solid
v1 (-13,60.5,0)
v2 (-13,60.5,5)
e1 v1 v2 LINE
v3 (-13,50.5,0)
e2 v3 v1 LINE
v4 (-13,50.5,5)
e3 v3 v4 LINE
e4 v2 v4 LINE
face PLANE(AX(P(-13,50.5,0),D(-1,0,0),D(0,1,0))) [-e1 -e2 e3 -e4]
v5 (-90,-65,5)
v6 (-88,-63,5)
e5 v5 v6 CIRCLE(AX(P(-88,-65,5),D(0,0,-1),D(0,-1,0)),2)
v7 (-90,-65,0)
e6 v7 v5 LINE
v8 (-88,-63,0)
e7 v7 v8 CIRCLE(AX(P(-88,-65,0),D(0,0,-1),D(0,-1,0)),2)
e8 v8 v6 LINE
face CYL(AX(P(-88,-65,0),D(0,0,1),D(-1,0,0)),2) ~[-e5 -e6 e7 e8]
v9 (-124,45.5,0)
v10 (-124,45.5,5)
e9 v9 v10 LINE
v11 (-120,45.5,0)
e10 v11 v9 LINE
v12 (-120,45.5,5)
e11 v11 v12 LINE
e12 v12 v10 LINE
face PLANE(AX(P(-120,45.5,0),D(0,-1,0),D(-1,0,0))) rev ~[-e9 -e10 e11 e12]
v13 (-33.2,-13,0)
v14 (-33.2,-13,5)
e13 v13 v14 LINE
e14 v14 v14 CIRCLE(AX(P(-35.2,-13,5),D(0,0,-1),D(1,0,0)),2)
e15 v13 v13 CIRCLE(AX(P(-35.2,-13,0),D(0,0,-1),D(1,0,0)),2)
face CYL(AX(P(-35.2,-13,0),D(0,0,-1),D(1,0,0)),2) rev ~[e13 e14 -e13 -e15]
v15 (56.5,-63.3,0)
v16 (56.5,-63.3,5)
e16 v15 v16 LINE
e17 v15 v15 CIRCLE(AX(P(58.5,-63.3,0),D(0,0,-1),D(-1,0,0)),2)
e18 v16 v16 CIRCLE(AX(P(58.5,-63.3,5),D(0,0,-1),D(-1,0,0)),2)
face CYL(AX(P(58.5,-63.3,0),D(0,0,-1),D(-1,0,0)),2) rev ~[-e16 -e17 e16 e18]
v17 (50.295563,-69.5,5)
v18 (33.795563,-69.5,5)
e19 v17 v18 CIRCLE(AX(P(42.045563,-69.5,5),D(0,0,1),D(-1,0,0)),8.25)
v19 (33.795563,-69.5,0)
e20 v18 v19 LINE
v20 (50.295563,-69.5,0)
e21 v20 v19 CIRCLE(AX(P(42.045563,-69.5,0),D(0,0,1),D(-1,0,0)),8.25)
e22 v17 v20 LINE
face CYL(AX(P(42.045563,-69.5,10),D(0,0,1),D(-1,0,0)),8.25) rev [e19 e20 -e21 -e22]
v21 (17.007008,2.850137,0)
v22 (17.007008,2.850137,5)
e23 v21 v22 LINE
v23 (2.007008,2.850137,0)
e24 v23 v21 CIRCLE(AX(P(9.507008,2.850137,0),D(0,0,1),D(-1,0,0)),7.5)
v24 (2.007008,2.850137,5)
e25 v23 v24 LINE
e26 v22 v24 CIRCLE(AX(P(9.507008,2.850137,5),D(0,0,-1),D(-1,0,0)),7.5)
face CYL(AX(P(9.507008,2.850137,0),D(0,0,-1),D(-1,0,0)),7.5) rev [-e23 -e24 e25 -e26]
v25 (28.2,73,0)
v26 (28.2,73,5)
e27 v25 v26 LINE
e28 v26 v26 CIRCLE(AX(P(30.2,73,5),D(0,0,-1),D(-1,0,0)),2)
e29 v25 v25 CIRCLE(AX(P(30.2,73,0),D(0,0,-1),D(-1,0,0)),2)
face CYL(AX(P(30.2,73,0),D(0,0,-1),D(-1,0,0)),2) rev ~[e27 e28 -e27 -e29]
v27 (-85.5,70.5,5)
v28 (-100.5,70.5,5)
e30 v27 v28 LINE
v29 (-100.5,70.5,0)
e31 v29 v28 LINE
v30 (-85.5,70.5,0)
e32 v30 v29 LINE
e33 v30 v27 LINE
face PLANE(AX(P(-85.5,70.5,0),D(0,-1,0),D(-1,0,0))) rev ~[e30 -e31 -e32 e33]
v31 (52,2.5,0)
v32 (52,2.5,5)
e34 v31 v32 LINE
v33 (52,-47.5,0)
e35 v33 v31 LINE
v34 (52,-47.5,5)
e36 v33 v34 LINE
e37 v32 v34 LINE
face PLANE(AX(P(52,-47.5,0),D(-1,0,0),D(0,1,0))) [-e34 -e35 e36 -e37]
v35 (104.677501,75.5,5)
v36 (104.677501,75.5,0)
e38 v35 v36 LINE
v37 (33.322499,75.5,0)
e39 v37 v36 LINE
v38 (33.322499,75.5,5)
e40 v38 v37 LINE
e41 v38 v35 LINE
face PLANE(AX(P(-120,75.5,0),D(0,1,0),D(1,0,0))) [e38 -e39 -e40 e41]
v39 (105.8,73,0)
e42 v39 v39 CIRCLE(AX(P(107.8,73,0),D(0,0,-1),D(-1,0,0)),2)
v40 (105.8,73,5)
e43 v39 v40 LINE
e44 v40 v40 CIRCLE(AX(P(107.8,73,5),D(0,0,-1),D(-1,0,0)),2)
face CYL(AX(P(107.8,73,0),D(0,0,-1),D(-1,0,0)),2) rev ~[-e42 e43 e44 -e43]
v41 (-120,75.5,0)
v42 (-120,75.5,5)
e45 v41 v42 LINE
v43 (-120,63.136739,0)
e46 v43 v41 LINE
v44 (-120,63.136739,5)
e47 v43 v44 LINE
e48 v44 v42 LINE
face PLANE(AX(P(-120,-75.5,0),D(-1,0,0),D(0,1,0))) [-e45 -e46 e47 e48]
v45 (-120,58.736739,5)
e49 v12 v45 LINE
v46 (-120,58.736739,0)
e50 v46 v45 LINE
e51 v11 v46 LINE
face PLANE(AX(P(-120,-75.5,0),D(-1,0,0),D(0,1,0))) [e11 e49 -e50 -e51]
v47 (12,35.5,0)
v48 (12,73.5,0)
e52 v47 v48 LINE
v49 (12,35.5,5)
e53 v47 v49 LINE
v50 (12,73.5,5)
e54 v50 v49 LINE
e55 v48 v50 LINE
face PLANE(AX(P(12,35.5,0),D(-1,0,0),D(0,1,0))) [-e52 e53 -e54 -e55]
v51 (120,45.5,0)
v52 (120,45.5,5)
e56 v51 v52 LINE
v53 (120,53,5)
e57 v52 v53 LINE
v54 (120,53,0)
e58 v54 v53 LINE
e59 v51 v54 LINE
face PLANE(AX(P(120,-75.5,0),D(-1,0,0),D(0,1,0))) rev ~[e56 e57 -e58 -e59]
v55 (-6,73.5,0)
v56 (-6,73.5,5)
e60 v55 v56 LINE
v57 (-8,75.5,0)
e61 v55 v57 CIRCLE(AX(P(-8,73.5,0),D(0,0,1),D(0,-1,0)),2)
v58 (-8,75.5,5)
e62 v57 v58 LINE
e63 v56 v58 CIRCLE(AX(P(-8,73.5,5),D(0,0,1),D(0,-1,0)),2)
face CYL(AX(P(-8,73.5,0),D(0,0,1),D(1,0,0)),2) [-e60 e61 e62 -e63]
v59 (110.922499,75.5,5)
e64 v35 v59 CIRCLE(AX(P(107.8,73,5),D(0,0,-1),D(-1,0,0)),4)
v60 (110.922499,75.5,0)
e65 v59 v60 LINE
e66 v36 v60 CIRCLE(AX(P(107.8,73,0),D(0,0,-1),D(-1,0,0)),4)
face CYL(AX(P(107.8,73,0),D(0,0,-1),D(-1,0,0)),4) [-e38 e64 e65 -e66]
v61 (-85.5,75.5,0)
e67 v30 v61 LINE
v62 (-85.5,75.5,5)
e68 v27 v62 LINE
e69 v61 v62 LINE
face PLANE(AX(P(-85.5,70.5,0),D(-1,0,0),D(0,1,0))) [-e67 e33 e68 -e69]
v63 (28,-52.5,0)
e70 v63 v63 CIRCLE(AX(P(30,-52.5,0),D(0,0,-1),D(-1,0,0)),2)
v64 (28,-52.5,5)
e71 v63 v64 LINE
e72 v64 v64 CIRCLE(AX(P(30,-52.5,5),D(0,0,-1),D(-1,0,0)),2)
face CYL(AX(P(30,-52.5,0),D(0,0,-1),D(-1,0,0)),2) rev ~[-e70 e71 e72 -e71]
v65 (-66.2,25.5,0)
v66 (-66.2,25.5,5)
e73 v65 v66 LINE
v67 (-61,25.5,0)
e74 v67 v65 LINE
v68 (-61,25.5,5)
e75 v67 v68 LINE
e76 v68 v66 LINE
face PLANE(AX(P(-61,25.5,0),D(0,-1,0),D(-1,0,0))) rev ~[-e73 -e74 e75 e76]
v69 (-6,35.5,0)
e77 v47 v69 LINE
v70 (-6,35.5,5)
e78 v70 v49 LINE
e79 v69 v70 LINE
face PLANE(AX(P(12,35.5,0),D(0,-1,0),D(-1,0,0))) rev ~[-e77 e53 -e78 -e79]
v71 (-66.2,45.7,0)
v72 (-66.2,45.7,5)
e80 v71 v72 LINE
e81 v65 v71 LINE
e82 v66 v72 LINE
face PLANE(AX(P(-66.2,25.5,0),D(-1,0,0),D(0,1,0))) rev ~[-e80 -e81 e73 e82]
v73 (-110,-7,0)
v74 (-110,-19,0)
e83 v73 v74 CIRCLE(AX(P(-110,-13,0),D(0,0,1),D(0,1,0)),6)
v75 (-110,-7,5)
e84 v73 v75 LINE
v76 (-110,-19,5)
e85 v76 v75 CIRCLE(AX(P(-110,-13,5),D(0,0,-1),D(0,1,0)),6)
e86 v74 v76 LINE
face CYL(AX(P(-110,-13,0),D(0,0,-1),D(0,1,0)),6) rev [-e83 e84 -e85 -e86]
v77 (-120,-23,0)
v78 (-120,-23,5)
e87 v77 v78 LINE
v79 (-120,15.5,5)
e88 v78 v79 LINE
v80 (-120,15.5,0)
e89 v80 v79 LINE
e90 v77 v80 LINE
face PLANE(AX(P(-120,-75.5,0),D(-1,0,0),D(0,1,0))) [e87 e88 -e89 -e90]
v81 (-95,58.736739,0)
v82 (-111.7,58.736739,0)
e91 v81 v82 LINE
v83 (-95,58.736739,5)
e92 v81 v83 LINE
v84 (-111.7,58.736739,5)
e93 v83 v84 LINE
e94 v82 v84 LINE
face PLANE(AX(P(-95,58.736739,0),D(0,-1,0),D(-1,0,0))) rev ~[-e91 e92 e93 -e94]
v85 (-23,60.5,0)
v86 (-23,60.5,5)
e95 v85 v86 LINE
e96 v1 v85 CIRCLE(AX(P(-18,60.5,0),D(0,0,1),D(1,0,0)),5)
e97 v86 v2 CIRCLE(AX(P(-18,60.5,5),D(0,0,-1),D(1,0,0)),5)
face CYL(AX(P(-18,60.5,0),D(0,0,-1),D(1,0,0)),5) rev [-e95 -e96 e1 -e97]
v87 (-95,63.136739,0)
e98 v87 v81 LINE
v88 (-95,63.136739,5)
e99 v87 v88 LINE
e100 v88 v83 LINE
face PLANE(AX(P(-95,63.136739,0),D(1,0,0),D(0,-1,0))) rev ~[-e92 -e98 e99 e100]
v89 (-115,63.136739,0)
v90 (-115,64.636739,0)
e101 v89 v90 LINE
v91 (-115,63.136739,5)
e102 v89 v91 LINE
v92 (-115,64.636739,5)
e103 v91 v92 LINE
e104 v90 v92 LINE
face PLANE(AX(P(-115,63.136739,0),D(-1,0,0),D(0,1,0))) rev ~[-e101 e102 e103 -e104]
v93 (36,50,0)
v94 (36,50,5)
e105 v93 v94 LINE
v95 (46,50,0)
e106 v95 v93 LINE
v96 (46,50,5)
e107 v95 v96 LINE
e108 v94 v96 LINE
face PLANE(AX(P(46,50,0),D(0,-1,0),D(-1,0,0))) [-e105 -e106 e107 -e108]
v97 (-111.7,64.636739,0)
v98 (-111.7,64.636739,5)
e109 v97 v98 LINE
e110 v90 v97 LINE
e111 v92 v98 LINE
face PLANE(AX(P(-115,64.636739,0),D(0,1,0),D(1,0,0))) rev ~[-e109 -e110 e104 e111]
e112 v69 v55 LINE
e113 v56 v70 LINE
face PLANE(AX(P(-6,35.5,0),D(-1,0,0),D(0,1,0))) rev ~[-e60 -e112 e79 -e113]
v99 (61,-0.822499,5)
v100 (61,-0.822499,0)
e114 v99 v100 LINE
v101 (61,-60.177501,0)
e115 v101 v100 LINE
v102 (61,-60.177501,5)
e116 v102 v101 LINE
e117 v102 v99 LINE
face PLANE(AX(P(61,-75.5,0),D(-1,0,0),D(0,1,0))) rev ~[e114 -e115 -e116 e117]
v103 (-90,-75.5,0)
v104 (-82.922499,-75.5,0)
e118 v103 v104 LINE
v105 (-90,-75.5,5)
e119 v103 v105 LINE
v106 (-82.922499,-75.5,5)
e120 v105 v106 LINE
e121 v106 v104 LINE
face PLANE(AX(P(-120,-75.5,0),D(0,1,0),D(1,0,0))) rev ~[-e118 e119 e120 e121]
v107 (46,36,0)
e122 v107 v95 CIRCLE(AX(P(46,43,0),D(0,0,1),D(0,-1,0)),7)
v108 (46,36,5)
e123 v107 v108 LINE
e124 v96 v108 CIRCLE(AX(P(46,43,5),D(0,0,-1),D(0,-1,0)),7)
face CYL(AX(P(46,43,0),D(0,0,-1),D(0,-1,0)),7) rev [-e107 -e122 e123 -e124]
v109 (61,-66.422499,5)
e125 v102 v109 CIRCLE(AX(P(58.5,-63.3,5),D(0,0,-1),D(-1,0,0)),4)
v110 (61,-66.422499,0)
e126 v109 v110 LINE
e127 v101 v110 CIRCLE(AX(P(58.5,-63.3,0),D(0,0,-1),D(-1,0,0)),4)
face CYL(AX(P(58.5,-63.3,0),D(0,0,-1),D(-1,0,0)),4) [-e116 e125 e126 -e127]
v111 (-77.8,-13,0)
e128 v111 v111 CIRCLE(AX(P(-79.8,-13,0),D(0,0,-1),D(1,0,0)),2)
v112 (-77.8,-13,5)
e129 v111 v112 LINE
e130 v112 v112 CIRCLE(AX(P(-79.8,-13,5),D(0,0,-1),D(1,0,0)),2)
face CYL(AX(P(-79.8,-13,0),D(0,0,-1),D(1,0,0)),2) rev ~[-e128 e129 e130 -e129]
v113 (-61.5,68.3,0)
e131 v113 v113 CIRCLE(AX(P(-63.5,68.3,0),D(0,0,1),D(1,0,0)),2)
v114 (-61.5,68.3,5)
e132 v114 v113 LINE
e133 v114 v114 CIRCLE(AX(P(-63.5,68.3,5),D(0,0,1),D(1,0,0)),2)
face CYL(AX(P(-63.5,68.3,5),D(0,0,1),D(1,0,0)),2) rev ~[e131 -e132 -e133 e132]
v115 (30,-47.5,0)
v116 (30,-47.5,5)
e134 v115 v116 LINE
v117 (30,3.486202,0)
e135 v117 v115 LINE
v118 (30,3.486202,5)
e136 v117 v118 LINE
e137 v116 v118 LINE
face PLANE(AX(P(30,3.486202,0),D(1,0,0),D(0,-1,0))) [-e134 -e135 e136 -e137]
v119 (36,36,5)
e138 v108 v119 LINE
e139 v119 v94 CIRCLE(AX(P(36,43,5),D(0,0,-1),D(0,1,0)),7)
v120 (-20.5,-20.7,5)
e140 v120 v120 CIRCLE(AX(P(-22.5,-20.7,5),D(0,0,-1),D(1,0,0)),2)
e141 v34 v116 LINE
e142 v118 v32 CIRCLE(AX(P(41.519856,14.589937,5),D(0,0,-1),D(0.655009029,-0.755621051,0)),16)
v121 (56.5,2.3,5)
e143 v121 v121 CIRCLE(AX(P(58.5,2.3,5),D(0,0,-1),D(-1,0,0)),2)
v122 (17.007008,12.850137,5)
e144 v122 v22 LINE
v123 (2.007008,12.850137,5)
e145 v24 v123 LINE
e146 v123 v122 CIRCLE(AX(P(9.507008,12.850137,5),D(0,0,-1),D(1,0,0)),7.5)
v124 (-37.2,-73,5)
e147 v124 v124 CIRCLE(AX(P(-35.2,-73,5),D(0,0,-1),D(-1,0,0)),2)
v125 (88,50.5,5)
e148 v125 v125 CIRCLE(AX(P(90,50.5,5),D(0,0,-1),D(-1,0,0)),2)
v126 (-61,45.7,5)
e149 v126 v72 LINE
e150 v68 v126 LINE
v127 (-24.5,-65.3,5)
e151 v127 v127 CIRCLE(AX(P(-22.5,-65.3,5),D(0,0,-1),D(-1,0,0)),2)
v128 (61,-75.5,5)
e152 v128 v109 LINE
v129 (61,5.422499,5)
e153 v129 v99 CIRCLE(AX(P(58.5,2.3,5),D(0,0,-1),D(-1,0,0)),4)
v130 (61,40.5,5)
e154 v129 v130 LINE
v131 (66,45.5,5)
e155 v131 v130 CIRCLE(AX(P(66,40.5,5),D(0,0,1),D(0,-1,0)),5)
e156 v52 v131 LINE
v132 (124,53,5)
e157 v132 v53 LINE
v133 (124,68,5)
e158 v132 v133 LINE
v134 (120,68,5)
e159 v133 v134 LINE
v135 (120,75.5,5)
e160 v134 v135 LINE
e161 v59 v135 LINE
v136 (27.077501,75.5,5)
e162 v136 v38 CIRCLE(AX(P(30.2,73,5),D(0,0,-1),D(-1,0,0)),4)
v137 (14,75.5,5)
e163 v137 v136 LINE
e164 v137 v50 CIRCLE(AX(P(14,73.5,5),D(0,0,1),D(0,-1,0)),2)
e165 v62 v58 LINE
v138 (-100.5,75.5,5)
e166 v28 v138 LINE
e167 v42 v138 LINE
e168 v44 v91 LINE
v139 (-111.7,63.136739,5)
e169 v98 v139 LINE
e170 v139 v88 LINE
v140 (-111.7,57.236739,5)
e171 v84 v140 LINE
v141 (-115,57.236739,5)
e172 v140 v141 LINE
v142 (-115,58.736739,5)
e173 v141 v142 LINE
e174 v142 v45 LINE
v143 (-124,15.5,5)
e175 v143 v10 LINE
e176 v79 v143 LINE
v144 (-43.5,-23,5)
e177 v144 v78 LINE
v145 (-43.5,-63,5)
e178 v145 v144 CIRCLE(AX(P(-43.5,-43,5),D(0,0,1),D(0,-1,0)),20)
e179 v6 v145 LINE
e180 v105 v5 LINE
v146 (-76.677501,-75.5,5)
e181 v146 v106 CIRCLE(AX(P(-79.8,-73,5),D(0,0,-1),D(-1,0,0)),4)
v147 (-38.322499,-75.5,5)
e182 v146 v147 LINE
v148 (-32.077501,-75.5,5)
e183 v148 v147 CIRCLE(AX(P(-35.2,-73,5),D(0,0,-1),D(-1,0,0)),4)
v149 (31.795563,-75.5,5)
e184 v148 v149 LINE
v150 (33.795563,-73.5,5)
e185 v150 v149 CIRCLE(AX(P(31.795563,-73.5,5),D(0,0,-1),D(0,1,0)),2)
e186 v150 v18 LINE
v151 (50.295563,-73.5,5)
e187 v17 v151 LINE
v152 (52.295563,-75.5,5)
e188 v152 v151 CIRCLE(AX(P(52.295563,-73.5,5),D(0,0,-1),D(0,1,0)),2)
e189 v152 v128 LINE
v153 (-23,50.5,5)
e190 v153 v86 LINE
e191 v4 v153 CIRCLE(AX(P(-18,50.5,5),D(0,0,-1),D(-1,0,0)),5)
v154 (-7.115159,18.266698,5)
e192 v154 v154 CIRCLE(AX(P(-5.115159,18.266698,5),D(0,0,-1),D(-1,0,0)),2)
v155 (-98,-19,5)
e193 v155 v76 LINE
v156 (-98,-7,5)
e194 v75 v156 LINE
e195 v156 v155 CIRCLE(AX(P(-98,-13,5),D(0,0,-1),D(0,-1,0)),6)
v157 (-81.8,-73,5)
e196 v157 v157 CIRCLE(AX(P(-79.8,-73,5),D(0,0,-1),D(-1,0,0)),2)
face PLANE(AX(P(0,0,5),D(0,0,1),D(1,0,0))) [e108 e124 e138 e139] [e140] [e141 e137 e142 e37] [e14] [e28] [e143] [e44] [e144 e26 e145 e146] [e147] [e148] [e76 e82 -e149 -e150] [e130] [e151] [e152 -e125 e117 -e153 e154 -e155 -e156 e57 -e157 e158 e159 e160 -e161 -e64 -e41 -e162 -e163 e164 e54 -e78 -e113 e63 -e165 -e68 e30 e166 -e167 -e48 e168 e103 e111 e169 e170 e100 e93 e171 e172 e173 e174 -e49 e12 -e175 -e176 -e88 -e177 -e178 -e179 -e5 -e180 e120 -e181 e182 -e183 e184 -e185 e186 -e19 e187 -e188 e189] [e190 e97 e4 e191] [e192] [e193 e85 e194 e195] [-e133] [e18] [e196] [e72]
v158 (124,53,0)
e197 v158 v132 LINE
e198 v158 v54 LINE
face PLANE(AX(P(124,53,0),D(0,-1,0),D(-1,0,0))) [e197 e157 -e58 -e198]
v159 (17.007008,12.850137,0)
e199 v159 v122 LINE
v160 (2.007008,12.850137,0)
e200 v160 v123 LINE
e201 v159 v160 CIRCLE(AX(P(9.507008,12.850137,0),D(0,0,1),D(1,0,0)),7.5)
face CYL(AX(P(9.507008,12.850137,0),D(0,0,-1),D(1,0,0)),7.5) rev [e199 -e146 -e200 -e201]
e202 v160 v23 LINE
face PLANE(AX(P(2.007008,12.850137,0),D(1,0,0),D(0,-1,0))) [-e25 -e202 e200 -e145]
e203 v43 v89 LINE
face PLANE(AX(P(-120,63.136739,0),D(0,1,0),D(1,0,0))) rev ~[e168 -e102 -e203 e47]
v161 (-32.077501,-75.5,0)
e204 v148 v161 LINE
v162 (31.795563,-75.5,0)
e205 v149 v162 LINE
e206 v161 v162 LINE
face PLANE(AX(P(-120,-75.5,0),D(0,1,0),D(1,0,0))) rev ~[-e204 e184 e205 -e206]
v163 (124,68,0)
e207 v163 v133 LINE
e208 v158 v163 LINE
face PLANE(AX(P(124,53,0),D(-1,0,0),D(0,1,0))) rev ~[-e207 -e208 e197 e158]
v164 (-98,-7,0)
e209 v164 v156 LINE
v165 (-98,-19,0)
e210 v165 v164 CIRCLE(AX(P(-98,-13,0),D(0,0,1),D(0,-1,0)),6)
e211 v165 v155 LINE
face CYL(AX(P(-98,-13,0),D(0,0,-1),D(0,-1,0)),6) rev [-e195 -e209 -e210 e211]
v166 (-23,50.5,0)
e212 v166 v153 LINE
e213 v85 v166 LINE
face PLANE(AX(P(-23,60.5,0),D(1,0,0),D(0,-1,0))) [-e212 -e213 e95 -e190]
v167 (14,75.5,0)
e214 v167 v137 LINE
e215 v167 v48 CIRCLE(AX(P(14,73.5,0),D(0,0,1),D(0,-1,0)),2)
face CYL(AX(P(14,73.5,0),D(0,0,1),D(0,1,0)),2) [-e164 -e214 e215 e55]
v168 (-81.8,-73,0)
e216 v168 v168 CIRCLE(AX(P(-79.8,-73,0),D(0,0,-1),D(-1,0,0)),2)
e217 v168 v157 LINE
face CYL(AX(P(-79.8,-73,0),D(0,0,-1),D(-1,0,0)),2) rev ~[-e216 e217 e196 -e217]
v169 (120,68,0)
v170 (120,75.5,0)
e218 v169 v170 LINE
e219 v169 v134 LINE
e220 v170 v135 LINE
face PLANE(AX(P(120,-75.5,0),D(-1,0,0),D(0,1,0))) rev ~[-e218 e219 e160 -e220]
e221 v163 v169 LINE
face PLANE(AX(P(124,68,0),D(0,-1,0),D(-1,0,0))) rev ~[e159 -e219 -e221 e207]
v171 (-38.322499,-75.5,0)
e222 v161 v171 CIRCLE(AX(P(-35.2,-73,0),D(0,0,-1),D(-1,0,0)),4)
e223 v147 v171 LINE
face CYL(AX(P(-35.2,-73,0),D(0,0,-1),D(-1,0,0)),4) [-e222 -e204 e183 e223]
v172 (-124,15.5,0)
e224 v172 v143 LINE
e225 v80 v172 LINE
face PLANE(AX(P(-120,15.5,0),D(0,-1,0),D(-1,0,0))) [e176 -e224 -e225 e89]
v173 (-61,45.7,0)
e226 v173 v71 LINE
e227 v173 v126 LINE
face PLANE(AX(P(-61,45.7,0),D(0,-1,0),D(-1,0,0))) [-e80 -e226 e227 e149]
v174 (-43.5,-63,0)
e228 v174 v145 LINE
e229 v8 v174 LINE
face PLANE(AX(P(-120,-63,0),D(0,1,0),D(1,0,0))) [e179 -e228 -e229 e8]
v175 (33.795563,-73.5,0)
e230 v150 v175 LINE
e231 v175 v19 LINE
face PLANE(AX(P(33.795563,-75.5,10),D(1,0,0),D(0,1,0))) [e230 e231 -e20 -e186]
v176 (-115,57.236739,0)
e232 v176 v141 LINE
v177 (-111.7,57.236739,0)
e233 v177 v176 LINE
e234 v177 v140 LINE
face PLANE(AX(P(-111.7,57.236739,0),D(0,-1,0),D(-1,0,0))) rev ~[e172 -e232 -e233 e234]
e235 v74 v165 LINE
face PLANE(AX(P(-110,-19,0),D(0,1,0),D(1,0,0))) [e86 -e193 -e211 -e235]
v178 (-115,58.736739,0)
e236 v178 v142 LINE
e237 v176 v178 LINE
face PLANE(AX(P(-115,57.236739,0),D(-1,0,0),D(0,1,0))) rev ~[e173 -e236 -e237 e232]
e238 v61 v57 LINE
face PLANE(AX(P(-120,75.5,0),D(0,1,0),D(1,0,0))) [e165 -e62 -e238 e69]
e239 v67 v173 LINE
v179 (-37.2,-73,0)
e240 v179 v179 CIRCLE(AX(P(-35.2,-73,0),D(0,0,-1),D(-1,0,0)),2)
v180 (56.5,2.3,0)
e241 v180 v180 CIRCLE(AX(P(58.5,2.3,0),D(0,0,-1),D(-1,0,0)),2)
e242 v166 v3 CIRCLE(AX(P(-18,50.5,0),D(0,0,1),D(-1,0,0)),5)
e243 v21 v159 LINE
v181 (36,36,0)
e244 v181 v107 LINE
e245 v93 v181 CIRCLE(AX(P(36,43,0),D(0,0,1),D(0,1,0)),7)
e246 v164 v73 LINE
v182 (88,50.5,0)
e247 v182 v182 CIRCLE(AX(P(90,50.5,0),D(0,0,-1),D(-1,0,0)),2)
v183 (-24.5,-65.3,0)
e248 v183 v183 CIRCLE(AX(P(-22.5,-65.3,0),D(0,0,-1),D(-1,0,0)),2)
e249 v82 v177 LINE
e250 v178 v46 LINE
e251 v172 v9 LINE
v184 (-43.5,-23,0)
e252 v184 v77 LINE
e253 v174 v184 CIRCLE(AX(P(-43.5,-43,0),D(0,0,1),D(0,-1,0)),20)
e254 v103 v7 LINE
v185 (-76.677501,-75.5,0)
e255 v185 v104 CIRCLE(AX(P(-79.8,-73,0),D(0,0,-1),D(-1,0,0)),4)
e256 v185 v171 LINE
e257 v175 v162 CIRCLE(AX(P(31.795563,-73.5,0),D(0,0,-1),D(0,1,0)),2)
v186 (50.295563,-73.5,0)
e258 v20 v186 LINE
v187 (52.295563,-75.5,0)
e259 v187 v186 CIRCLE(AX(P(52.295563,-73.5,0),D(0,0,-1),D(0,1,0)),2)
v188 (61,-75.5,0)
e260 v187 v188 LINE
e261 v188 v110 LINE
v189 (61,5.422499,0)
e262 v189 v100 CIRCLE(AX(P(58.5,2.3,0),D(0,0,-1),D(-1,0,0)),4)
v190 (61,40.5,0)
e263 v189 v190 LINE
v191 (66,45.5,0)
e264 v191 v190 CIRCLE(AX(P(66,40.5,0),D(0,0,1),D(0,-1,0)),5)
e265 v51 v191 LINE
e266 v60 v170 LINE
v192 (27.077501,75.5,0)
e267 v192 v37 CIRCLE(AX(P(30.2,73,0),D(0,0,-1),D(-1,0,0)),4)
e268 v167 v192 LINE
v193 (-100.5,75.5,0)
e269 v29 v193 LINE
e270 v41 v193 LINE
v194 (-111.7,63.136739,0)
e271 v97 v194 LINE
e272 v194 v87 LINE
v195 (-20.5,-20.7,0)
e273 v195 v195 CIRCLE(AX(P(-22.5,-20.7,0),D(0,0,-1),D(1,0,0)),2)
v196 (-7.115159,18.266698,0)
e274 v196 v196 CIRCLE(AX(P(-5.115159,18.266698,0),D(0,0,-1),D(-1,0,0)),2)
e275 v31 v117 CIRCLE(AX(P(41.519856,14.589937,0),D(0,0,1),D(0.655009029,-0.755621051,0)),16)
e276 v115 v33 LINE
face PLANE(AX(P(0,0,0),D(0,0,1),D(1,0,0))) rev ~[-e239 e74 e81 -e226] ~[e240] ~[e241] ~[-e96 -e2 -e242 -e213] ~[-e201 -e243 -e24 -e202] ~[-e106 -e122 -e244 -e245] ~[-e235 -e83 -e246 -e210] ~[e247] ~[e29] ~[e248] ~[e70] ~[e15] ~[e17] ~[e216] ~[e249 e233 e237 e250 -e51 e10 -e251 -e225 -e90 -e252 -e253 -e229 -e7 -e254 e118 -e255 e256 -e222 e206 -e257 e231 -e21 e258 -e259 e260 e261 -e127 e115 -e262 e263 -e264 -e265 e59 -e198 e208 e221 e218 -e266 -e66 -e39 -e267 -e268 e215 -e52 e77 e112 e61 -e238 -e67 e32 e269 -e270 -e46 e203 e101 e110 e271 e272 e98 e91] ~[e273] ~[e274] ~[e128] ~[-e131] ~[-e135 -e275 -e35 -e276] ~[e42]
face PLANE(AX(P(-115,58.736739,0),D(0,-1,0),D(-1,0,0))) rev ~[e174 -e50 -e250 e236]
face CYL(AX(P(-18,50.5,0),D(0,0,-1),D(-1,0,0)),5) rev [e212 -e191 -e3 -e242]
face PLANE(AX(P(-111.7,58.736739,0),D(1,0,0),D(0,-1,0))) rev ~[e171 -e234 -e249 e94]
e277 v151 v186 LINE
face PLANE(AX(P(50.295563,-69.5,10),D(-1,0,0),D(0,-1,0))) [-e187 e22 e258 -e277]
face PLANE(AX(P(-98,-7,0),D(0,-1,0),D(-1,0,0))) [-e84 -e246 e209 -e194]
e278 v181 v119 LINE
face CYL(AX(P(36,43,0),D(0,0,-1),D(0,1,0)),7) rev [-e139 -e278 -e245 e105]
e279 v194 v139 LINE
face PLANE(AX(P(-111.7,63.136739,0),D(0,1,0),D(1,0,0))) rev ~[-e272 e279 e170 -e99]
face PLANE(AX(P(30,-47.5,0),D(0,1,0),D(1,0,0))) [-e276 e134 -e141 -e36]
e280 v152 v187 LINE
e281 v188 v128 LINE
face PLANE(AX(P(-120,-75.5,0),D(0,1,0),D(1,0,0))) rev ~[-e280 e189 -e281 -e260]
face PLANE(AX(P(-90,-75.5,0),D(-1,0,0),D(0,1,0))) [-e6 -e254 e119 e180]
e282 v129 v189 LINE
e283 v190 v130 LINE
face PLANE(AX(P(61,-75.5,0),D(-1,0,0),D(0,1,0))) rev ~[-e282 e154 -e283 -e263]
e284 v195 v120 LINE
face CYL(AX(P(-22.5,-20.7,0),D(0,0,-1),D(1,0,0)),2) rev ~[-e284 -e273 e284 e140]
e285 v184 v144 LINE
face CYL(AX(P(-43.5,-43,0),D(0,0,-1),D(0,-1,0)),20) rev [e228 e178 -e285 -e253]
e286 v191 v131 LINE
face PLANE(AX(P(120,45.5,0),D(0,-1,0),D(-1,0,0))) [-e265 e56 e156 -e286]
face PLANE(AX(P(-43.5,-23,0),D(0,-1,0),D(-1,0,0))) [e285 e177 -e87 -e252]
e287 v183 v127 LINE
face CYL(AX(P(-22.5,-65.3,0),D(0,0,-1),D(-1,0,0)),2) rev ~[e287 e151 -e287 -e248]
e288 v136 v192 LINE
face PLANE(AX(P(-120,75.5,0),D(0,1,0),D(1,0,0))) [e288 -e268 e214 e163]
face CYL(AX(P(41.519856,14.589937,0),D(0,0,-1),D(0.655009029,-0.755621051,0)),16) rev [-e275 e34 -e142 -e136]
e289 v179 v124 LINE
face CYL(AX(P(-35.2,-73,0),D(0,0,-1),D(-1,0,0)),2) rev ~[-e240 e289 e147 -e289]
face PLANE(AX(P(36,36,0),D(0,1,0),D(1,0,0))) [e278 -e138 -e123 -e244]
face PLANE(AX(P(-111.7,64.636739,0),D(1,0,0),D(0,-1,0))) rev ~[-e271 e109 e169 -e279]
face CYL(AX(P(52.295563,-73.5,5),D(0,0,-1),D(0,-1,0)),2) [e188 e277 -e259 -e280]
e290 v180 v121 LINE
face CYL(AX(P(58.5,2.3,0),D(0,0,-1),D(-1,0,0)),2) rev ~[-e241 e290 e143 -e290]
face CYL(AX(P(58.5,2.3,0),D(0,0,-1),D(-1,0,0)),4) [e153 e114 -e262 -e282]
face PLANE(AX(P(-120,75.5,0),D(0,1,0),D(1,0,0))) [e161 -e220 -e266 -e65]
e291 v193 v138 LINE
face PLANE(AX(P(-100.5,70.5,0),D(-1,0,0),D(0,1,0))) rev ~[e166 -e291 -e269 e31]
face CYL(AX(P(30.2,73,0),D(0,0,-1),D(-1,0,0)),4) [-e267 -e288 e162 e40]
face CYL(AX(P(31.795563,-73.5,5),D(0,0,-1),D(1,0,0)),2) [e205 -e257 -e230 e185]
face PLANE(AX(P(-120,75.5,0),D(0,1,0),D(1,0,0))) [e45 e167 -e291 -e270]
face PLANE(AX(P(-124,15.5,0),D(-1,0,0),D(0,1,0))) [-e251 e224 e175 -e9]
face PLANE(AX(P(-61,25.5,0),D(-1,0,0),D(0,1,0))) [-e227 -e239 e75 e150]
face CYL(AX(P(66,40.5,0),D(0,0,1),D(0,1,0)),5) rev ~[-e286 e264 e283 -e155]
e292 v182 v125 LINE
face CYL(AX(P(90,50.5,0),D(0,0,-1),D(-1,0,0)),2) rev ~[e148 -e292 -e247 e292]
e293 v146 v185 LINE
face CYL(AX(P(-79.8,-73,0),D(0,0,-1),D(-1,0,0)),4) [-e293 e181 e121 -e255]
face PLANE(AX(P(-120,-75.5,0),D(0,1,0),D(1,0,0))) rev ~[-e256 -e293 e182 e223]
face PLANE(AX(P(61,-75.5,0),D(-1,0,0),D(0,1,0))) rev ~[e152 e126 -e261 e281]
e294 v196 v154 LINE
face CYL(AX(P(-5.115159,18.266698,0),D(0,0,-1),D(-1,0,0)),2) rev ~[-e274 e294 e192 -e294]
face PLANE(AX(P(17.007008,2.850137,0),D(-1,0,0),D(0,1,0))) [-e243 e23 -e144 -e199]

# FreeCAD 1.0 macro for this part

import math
import FreeCAD as App
import Part
import Sketcher
from FreeCAD import Vector


def edges_at(feature, points):
    """Names of the edges that pass closest to the given points."""
    edges = feature.Shape.Edges
    near = lambda p: min(range(len(edges)), key=lambda i: edges[i].distToShape(Part.Vertex(*p))[0])
    return sorted({f"Edge{near(p) + 1}" for p in points})


def add_polygon(sketch, points):
    """Adds a closed chain of lines whose ends are joined by coincident constraints."""
    first, n = sketch.GeometryCount, len(points)
    for a, b in zip(points, points[1:] + points[:1]):
        sketch.addGeometry(Part.LineSegment(App.Vector(*a, 0), App.Vector(*b, 0)), False)
    for i in range(n):
        sketch.addConstraint(Sketcher.Constraint("Coincident", first + i, 2, first + (i + 1) % n, 1))

doc = App.newDocument("Part")
body = doc.addObject("PartDesign::Body", "Body")

# Sketch on XY plane
sketch1 = body.newObject("Sketcher::SketchObject", "Sketch")
sketch1.AttachmentSupport = (doc.getObject("XY_Plane"), [""])
sketch1.MapMode = "FlatFace"
add_polygon(sketch1, [(-120, 76), (-120, -76), (120, -76), (120, 76)])  # lines 0-3
sketch1.addConstraint([
    Sketcher.Constraint("Vertical", 0),
    Sketcher.Constraint("Horizontal", 1),
    Sketcher.Constraint("Vertical", 2),
    Sketcher.Constraint("Horizontal", 3),
    Sketcher.Constraint("Symmetric", 0, 2, 2, 2, -1, 1),
    Sketcher.Constraint("DistanceX", 1, 1, 1, 2, 240.0),
    Sketcher.Constraint("DistanceY", 0, 2, 0, 1, 151.0),
])
pad1 = body.newObject("PartDesign::Pad", "Pad")
pad1.Profile = sketch1
pad1.Length = 5

# Sketch on XY plane
sketch2 = body.newObject("Sketcher::SketchObject", "Sketch001")
sketch2.AttachmentSupport = (doc.getObject("XY_Plane"), [""])
sketch2.MapMode = "FlatFace"
sketch2.addGeometry([
    Part.Circle(Vector(-35.2, -73, 0), Vector(0, 0, 1), 2),  # 0
    Part.Circle(Vector(-79.8, -73, 0), Vector(0, 0, 1), 2),  # 1
    Part.Circle(Vector(-22.5, -65.3, 0), Vector(0, 0, 1), 2),  # 2
    Part.Circle(Vector(-22.5, -20.7, 0), Vector(0, 0, 1), 2),  # 3
    Part.Circle(Vector(-79.8, -13, 0), Vector(0, 0, 1), 2),  # 4
    Part.Circle(Vector(-35.2, -13, 0), Vector(0, 0, 1), 2),  # 5
], False)
sketch2.addConstraint([
    Sketcher.Constraint("Equal", 0, 1),
    Sketcher.Constraint("Equal", 1, 2),
    Sketcher.Constraint("Equal", 2, 3),
    Sketcher.Constraint("Equal", 3, 4),
    Sketcher.Constraint("Equal", 4, 5),
    Sketcher.Constraint("Horizontal", 0, 3, 1, 3),
    Sketcher.Constraint("Horizontal", 4, 3, 5, 3),
    Sketcher.Constraint("Vertical", 2, 3, 3, 3),
    Sketcher.Constraint("Vertical", 1, 3, 4, 3),
    Sketcher.Constraint("Vertical", 0, 3, 5, 3),
    Sketcher.Constraint("Diameter", 0, 4.0),
    Sketcher.Constraint("DistanceY", 0, 3, -1, 1, 73.0),
    Sketcher.Constraint("DistanceY", 4, 3, -1, 1, 13.0),
    Sketcher.Constraint("DistanceX", 0, 3, -1, 1, 35.2),
    Sketcher.Constraint("DistanceX", 1, 3, -1, 1, 79.8),
    Sketcher.Constraint("DistanceX", 2, 3, -1, 1, 22.5),
    Sketcher.Constraint("DistanceY", 2, 3, -1, 1, 65.3),
    Sketcher.Constraint("DistanceY", 3, 3, -1, 1, 20.7),
])
pocket1 = body.newObject("PartDesign::Pocket", "Pocket")
pocket1.Profile = sketch2
pocket1.Length = 5
pocket1.Reversed = True

# Sketch on XY plane
sketch3 = body.newObject("Sketcher::SketchObject", "Sketch002")
sketch3.AttachmentSupport = (doc.getObject("XY_Plane"), [""])
sketch3.MapMode = "FlatFace"
sketch3.addGeometry([
    Part.Circle(Vector(-35.2, -73, 0), Vector(0, 0, 1), 4),
    Part.Circle(Vector(-35.2, -73, 0), Vector(0, 0, 1), 2),
    Part.Circle(Vector(-79.8, -73, 0), Vector(0, 0, 1), 4),
    Part.Circle(Vector(-79.8, -73, 0), Vector(0, 0, 1), 2),
], False)
sketch3.addConstraint([
    Sketcher.Constraint("Coincident", 1, 3, 0, 3),
    Sketcher.Constraint("Coincident", 3, 3, 2, 3),
    Sketcher.Constraint("Equal", 0, 2),
    Sketcher.Constraint("Equal", 1, 3),
    Sketcher.Constraint("Horizontal", 1, 3, 2, 3),
    Sketcher.Constraint("Diameter", 0, 8.0),
    Sketcher.Constraint("Diameter", 1, 4.0),
    Sketcher.Constraint("DistanceY", 0, 3, -1, 1, 73.0),
    Sketcher.Constraint("DistanceX", 0, 3, -1, 1, 35.2),
    Sketcher.Constraint("DistanceX", 2, 3, -1, 1, 79.8),
])
pad2 = body.newObject("PartDesign::Pad", "Pad001")
pad2.Profile = sketch3
pad2.Length = 5

# Sketch on XY plane
sketch4 = body.newObject("Sketcher::SketchObject", "Sketch003")
sketch4.AttachmentSupport = (doc.getObject("XY_Plane"), [""])
sketch4.MapMode = "FlatFace"
sketch4.addGeometry([
    Part.LineSegment(Vector(-44, -63, 0), Vector(-120, -63, 0)),
    Part.LineSegment(Vector(-120, -63, 0), Vector(-120, -23, 0)),
    Part.LineSegment(Vector(-120, -23, 0), Vector(-44, -23, 0)),
    Part.ArcOfCircle(Part.Circle(Vector(-44, -43, 0), Vector(0, 0, 1), 20), math.radians(-90), math.radians(90)),
], False)
sketch4.addConstraint([
    Sketcher.Constraint("Coincident", 0, 2, 1, 1),
    Sketcher.Constraint("Coincident", 1, 2, 2, 1),
    Sketcher.Constraint("Tangent", 2, 2, 3, 2),
    Sketcher.Constraint("Tangent", 3, 1, 0, 1),
    Sketcher.Constraint("Horizontal", 0),
    Sketcher.Constraint("Vertical", 1),
    Sketcher.Constraint("Horizontal", 2),
    Sketcher.Constraint("Radius", 3, 20.0),
    Sketcher.Constraint("DistanceX", 0, 2, 0, 1, 76.5),
    Sketcher.Constraint("DistanceY", 3, 3, -1, 1, 43.0),
    Sketcher.Constraint("DistanceX", 0, 2, -1, 1, 120.0),
])
pocket2 = body.newObject("PartDesign::Pocket", "Pocket001")
pocket2.Profile = sketch4
pocket2.Length = 5
pocket2.Reversed = True

# Sketch on XY plane
sketch5 = body.newObject("Sketcher::SketchObject", "Sketch004")
sketch5.AttachmentSupport = (doc.getObject("XY_Plane"), [""])
sketch5.MapMode = "FlatFace"
add_polygon(sketch5, [(-90, -63), (-90, -76), (-120, -76), (-120, -63)])  # lines 0-3
sketch5.addConstraint([
    Sketcher.Constraint("Vertical", 0),
    Sketcher.Constraint("Horizontal", 1),
    Sketcher.Constraint("Vertical", 2),
    Sketcher.Constraint("Horizontal", 3),
    Sketcher.Constraint("DistanceX", 1, 2, 1, 1, 30.0),
    Sketcher.Constraint("DistanceY", 0, 2, 0, 1, 12.5),
    Sketcher.Constraint("DistanceX", 0, 2, -1, 1, 90.0),
    Sketcher.Constraint("DistanceY", 2, 2, -1, 1, 63.0),
])
pocket3 = body.newObject("PartDesign::Pocket", "Pocket002")
pocket3.Profile = sketch5
pocket3.Length = 5
pocket3.Reversed = True

# Sketch on XY plane
sketch6 = body.newObject("Sketcher::SketchObject", "Sketch005")
sketch6.AttachmentSupport = (doc.getObject("XY_Plane"), [""])
sketch6.MapMode = "FlatFace"
add_polygon(sketch6, [(120, 46), (120, -76), (61, -76), (61, 46)])  # lines 0-3
sketch6.addConstraint([
    Sketcher.Constraint("Vertical", 0),
    Sketcher.Constraint("Horizontal", 1),
    Sketcher.Constraint("Vertical", 2),
    Sketcher.Constraint("Horizontal", 3),
    Sketcher.Constraint("DistanceX", 1, 2, 1, 1, 59.0),
    Sketcher.Constraint("DistanceY", 0, 2, 0, 1, 121.0),
    Sketcher.Constraint("DistanceX", -1, 1, 0, 2, 120.0),
    Sketcher.Constraint("DistanceY", 0, 2, -1, 1, 75.5),
])
pocket4 = body.newObject("PartDesign::Pocket", "Pocket003")
pocket4.Profile = sketch6
pocket4.Length = 5
pocket4.Reversed = True

# Sketch on XY plane
sketch7 = body.newObject("Sketcher::SketchObject", "Sketch006")
sketch7.AttachmentSupport = (doc.getObject("XY_Plane"), [""])
sketch7.MapMode = "FlatFace"
add_polygon(sketch7, [(12, 76), (12, 36), (-6, 36), (-6, 76)])  # lines 0-3
sketch7.addConstraint([
    Sketcher.Constraint("Vertical", 0),
    Sketcher.Constraint("Horizontal", 1),
    Sketcher.Constraint("Vertical", 2),
    Sketcher.Constraint("Horizontal", 3),
    Sketcher.Constraint("DistanceX", 1, 2, 1, 1, 18.0),
    Sketcher.Constraint("DistanceY", 0, 2, 0, 1, 40.0),
    Sketcher.Constraint("DistanceX", -1, 1, 0, 2, 12.0),
    Sketcher.Constraint("DistanceY", -1, 1, 0, 2, 35.5),
])
pocket5 = body.newObject("PartDesign::Pocket", "Pocket004")
pocket5.Profile = sketch7
pocket5.Length = 10
pocket5.Reversed = True

# Sketch on XY plane
sketch8 = body.newObject("Sketcher::SketchObject", "Sketch007")
sketch8.AttachmentSupport = (doc.getObject("XY_Plane"), [""])
sketch8.MapMode = "FlatFace"
sketch8.AttachmentOffset = App.Placement(Vector(0, 0, 5), App.Rotation())
sketch8.addGeometry(Part.Circle(Vector(-63.5, 68.3, 0), Vector(0, 0, 1), 2), False)
sketch8.addConstraint([
    Sketcher.Constraint("Diameter", 0, 4.0),
    Sketcher.Constraint("DistanceX", 0, 3, -1, 1, 63.5),
    Sketcher.Constraint("DistanceY", -1, 1, 0, 3, 68.3),
])
pocket6 = body.newObject("PartDesign::Pocket", "Pocket005")
pocket6.Profile = sketch8
pocket6.Length = 5

# Sketch on XY plane
sketch9 = body.newObject("Sketcher::SketchObject", "Sketch008")
sketch9.AttachmentSupport = (doc.getObject("XY_Plane"), [""])
sketch9.MapMode = "FlatFace"
add_polygon(sketch9, [(-61, 46), (-61, 26), (-66, 26), (-66, 46)])  # lines 0-3
sketch9.addConstraint([
    Sketcher.Constraint("Vertical", 0),
    Sketcher.Constraint("Horizontal", 1),
    Sketcher.Constraint("Vertical", 2),
    Sketcher.Constraint("Horizontal", 3),
    Sketcher.Constraint("DistanceX", 1, 2, 1, 1, 5.2),
    Sketcher.Constraint("DistanceY", 0, 2, 0, 1, 20.2),
    Sketcher.Constraint("DistanceX", 0, 2, -1, 1, 61.0),
    Sketcher.Constraint("DistanceY", -1, 1, 0, 2, 25.5),
])
pocket7 = body.newObject("PartDesign::Pocket", "Pocket006")
pocket7.Profile = sketch9
pocket7.Length = 5
pocket7.Reversed = True

# Sketch on XY plane
sketch10 = body.newObject("Sketcher::SketchObject", "Sketch009")
sketch10.AttachmentSupport = (doc.getObject("XY_Plane"), [""])
sketch10.MapMode = "FlatFace"
sketch10.addGeometry([
    Part.LineSegment(Vector(2, 3, 0), Vector(2, 13, 0)),
    Part.ArcOfCircle(Part.Circle(Vector(10, 13, 0), Vector(0, 0, 1), 8), math.radians(0), math.radians(180)),
    Part.LineSegment(Vector(17, 13, 0), Vector(17, 3, 0)),
    Part.ArcOfCircle(Part.Circle(Vector(10, 3, 0), Vector(0, 0, 1), 8), math.radians(180), math.radians(360)),
], False)
sketch10.addConstraint([
    Sketcher.Constraint("Tangent", 0, 2, 1, 2),
    Sketcher.Constraint("Tangent", 1, 1, 2, 1),
    Sketcher.Constraint("Tangent", 2, 2, 3, 2),
    Sketcher.Constraint("Tangent", 3, 1, 0, 1),
    Sketcher.Constraint("Vertical", 0),
    Sketcher.Constraint("Vertical", 2),
    Sketcher.Constraint("Radius", 1, 7.5),
    Sketcher.Constraint("DistanceY", 0, 1, 0, 2, 10.0),
    Sketcher.Constraint("DistanceX", -1, 1, 1, 3, 9.507008),
    Sketcher.Constraint("DistanceY", -1, 1, 1, 3, 12.850137),
])
pocket8 = body.newObject("PartDesign::Pocket", "Pocket007")
pocket8.Profile = sketch10
pocket8.Length = 10
pocket8.Reversed = True

# Sketch on XY plane
sketch11 = body.newObject("Sketcher::SketchObject", "Sketch010")
sketch11.AttachmentSupport = (doc.getObject("XY_Plane"), [""])
sketch11.MapMode = "FlatFace"
sketch11.addGeometry([
    Part.ArcOfCircle(Part.Circle(Vector(42, -70, 0), Vector(0, 0, 1), 8), math.radians(0), math.radians(180)),
    Part.LineSegment(Vector(50, -70, 0), Vector(50, -76, 0)),
    Part.LineSegment(Vector(50, -76, 0), Vector(34, -76, 0)),
    Part.LineSegment(Vector(34, -76, 0), Vector(34, -70, 0)),
], False)
sketch11.addConstraint([
    Sketcher.Constraint("Tangent", 0, 1, 1, 1),
    Sketcher.Constraint("Coincident", 1, 2, 2, 1),
    Sketcher.Constraint("Coincident", 2, 2, 3, 1),
    Sketcher.Constraint("Tangent", 3, 2, 0, 2),
    Sketcher.Constraint("Vertical", 1),
    Sketcher.Constraint("Horizontal", 2),
    Sketcher.Constraint("Vertical", 3),
    Sketcher.Constraint("DistanceY", 1, 2, 1, 1, 6.0),
    Sketcher.Constraint("Radius", 0, 8.25),
    Sketcher.Constraint("DistanceY", 0, 3, -1, 1, 69.5),
    Sketcher.Constraint("DistanceX", -1, 1, 0, 3, 42.045563),
])
pocket9 = body.newObject("PartDesign::Pocket", "Pocket008")
pocket9.Profile = sketch11
pocket9.Type = "ThroughAll"
pocket9.Midplane = True

# Sketch on XY plane
sketch12 = body.newObject("Sketcher::SketchObject", "Sketch011")
sketch12.AttachmentSupport = (doc.getObject("XY_Plane"), [""])
sketch12.MapMode = "FlatFace"
sketch12.addGeometry([
    Part.Circle(Vector(107.8, 73, 0), Vector(0, 0, 1), 2),
    Part.Circle(Vector(30.2, 73, 0), Vector(0, 0, 1), 2),
], False)
sketch12.addConstraint([
    Sketcher.Constraint("Equal", 0, 1),
    Sketcher.Constraint("Horizontal", 0, 3, 1, 3),
    Sketcher.Constraint("Diameter", 0, 4.0),
    Sketcher.Constraint("DistanceY", -1, 1, 0, 3, 73.0),
    Sketcher.Constraint("DistanceX", -1, 1, 0, 3, 107.8),
    Sketcher.Constraint("DistanceX", -1, 1, 1, 3, 30.2),
])
pocket10 = body.newObject("PartDesign::Pocket", "Pocket009")
pocket10.Profile = sketch12
pocket10.Length = 5
pocket10.Reversed = True

# Sketch on XY plane
sketch13 = body.newObject("Sketcher::SketchObject", "Sketch012")
sketch13.AttachmentSupport = (doc.getObject("XY_Plane"), [""])
sketch13.MapMode = "FlatFace"
sketch13.addGeometry([
    Part.Circle(Vector(107.8, 73, 0), Vector(0, 0, 1), 4),
    Part.Circle(Vector(107.8, 73, 0), Vector(0, 0, 1), 2),
    Part.Circle(Vector(30.2, 73, 0), Vector(0, 0, 1), 4),
    Part.Circle(Vector(30.2, 73, 0), Vector(0, 0, 1), 2),
], False)
sketch13.addConstraint([
    Sketcher.Constraint("Coincident", 1, 3, 0, 3),
    Sketcher.Constraint("Coincident", 3, 3, 2, 3),
    Sketcher.Constraint("Equal", 0, 2),
    Sketcher.Constraint("Equal", 1, 3),
    Sketcher.Constraint("Horizontal", 1, 3, 2, 3),
    Sketcher.Constraint("Diameter", 0, 8.0),
    Sketcher.Constraint("Diameter", 1, 4.0),
    Sketcher.Constraint("DistanceY", -1, 1, 0, 3, 73.0),
    Sketcher.Constraint("DistanceX", -1, 1, 0, 3, 107.8),
    Sketcher.Constraint("DistanceX", -1, 1, 2, 3, 30.2),
])
pad3 = body.newObject("PartDesign::Pad", "Pad002")
pad3.Profile = sketch13
pad3.Length = 5

# Sketch on XY plane
sketch14 = body.newObject("Sketcher::SketchObject", "Sketch013")
sketch14.AttachmentSupport = (doc.getObject("XY_Plane"), [""])
sketch14.MapMode = "FlatFace"
sketch14.addGeometry([
    Part.LineSegment(Vector(-98, -19, 0), Vector(-110, -19, 0)),
    Part.ArcOfCircle(Part.Circle(Vector(-110, -13, 0), Vector(0, 0, 1), 6), math.radians(90), math.radians(270)),
    Part.LineSegment(Vector(-110, -7, 0), Vector(-98, -7, 0)),
    Part.ArcOfCircle(Part.Circle(Vector(-98, -13, 0), Vector(0, 0, 1), 6), math.radians(-90), math.radians(90)),
], False)
sketch14.addConstraint([
    Sketcher.Constraint("Tangent", 0, 2, 1, 2),
    Sketcher.Constraint("Tangent", 1, 1, 2, 1),
    Sketcher.Constraint("Tangent", 2, 2, 3, 2),
    Sketcher.Constraint("Tangent", 3, 1, 0, 1),
    Sketcher.Constraint("Horizontal", 0),
    Sketcher.Constraint("Horizontal", 2),
    Sketcher.Constraint("Radius", 1, 6.0),
    Sketcher.Constraint("DistanceX", 0, 2, 0, 1, 12.0),
    Sketcher.Constraint("DistanceX", 1, 3, -1, 1, 110.0),
    Sketcher.Constraint("DistanceY", 1, 3, -1, 1, 13.0),
])
pocket11 = body.newObject("PartDesign::Pocket", "Pocket010")
pocket11.Profile = sketch14
pocket11.Length = 10
pocket11.Reversed = True

# Sketch on XY plane
sketch15 = body.newObject("Sketcher::SketchObject", "Sketch014")
sketch15.AttachmentSupport = (doc.getObject("XY_Plane"), [""])
sketch15.MapMode = "FlatFace"
add_polygon(sketch15, [(-120, 45.5), (-120, 15.5), (-124, 15.5), (-124, 45.5)])  # lines 0-3
add_polygon(sketch15, [(124, 68), (124, 53), (120, 53), (120, 68)])  # lines 4-7
sketch15.addConstraint([
    Sketcher.Constraint("Vertical", 0),
    Sketcher.Constraint("Horizontal", 1),
    Sketcher.Constraint("Vertical", 2),
    Sketcher.Constraint("Horizontal", 3),
    Sketcher.Constraint("Vertical", 4),
    Sketcher.Constraint("Horizontal", 5),
    Sketcher.Constraint("Vertical", 6),
    Sketcher.Constraint("Horizontal", 7),
    Sketcher.Constraint("Equal", 3, 5),
    Sketcher.Constraint("DistanceX", 1, 2, 1, 1, 4.0),
    Sketcher.Constraint("DistanceY", 0, 2, 0, 1, 30.0),
    Sketcher.Constraint("DistanceY", 4, 2, 4, 1, 15.0),
    Sketcher.Constraint("DistanceX", 0, 2, -1, 1, 120.0),
    Sketcher.Constraint("DistanceX", -1, 1, 4, 2, 124.0),
    Sketcher.Constraint("DistanceY", -1, 1, 4, 2, 53.0),
    Sketcher.Constraint("DistanceY", -1, 1, 0, 2, 15.5),
])
pad4 = body.newObject("PartDesign::Pad", "Pad003")
pad4.Profile = sketch15
pad4.Length = 5
doc.recompute()

fillet = body.newObject("PartDesign::Fillet", "Fillet")
fillet.Base = (pad4, edges_at(pad4, [(61, 45.5, 2.5)]))
fillet.Radius = 5
doc.recompute()

fillet2 = body.newObject("PartDesign::Fillet", "Fillet001")
fillet2.Base = (fillet, edges_at(fillet, [
    (12, 75.5, 2.5),
    (-6, 75.5, 2.5),
    (33.796, -75.5, 2.5),
    (50.296, -75.5, 2.5),
    (-90, -63, 2.5),
]))
fillet2.Radius = 2

# Sketch on XY plane
sketch16 = body.newObject("Sketcher::SketchObject", "Sketch015")
sketch16.AttachmentSupport = (doc.getObject("XY_Plane"), [""])
sketch16.MapMode = "FlatFace"
add_polygon(sketch16, [(-115, 58.7), (-120, 58.7), (-120, 63.1), (-115, 63.1), (-115, 64.6), (-111.7, 64.6), (-111.7, 63.1), (-95, 63.1), (-95, 58.7), (-111.7, 58.7), (-111.7, 57.2), (-115, 57.2)])  # lines 0-11
sketch16.addConstraint([
    Sketcher.Constraint("Horizontal", 0),
    Sketcher.Constraint("Vertical", 1),
    Sketcher.Constraint("Horizontal", 2),
    Sketcher.Constraint("Vertical", 3),
    Sketcher.Constraint("Horizontal", 4),
    Sketcher.Constraint("Vertical", 5),
    Sketcher.Constraint("Horizontal", 6),
    Sketcher.Constraint("Vertical", 7),
    Sketcher.Constraint("Horizontal", 8),
    Sketcher.Constraint("Vertical", 9),
    Sketcher.Constraint("Horizontal", 10),
    Sketcher.Constraint("Vertical", 11),
    Sketcher.Constraint("Horizontal", 2, 2, 5, 2),
    Sketcher.Constraint("Horizontal", 0, 2, 7, 2),
    Sketcher.Constraint("Vertical", 5, 2, 8, 2),
    Sketcher.Constraint("Vertical", 3, 2, 10, 2),
    Sketcher.Constraint("Equal", 5, 9),
    Sketcher.Constraint("DistanceX", 0, 2, 0, 1, 5.0),
    Sketcher.Constraint("DistanceX", 4, 1, 4, 2, 3.3),
    Sketcher.Constraint("DistanceX", 6, 1, 6, 2, 16.7),
    Sketcher.Constraint("DistanceY", 1, 1, 1, 2, 4.4),
    Sketcher.Constraint("DistanceY", 3, 1, 3, 2, 1.5),
    Sketcher.Constraint("DistanceX", 0, 2, -1, 1, 120.0),
    Sketcher.Constraint("DistanceY", -1, 1, 0, 2, 58.736739),
])
pocket12 = body.newObject("PartDesign::Pocket", "Pocket011")
pocket12.Profile = sketch16
pocket12.Length = 5
pocket12.Reversed = True

# Sketch on XY plane
sketch17 = body.newObject("Sketcher::SketchObject", "Sketch016")
sketch17.AttachmentSupport = (doc.getObject("XY_Plane"), [""])
sketch17.MapMode = "FlatFace"
sketch17.addGeometry(Part.Circle(Vector(30, -52.5, 0), Vector(0, 0, 1), 2), False)
sketch17.addConstraint([
    Sketcher.Constraint("Diameter", 0, 4.0),
    Sketcher.Constraint("DistanceX", -1, 1, 0, 3, 30.0),
    Sketcher.Constraint("DistanceY", 0, 3, -1, 1, 52.5),
])
pocket13 = body.newObject("PartDesign::Pocket", "Pocket012")
pocket13.Profile = sketch17
pocket13.Length = 10
pocket13.Reversed = True

# Sketch on XY plane
sketch18 = body.newObject("Sketcher::SketchObject", "Sketch017")
sketch18.AttachmentSupport = (doc.getObject("XY_Plane"), [""])
sketch18.MapMode = "FlatFace"
sketch18.addGeometry(Part.Circle(Vector(-5.1, 18.3, 0), Vector(0, 0, 1), 2), False)
sketch18.addConstraint([
    Sketcher.Constraint("Diameter", 0, 4.0),
    Sketcher.Constraint("DistanceY", -1, 1, 0, 3, 18.266698),
    Sketcher.Constraint("DistanceX", 0, 3, -1, 1, 5.115159),
])
pocket14 = body.newObject("PartDesign::Pocket", "Pocket013")
pocket14.Profile = sketch18
pocket14.Length = 10
pocket14.Reversed = True

# Sketch on XY plane
sketch19 = body.newObject("Sketcher::SketchObject", "Sketch018")
sketch19.AttachmentSupport = (doc.getObject("XY_Plane"), [""])
sketch19.MapMode = "FlatFace"
sketch19.addGeometry([
    Part.LineSegment(Vector(52, 2, 0), Vector(52, -48, 0)),
    Part.LineSegment(Vector(52, -48, 0), Vector(30, -48, 0)),
    Part.LineSegment(Vector(30, -48, 0), Vector(30, 3, 0)),
    Part.ArcOfCircle(Part.Circle(Vector(42, 15, 0), Vector(0, 0, 1), 16), math.radians(-49), math.radians(224)),
], False)
sketch19.addConstraint([
    Sketcher.Constraint("Coincident", 0, 2, 1, 1),
    Sketcher.Constraint("Coincident", 1, 2, 2, 1),
    Sketcher.Constraint("Coincident", 2, 2, 3, 2),
    Sketcher.Constraint("Coincident", 3, 1, 0, 1),
    Sketcher.Constraint("Vertical", 0),
    Sketcher.Constraint("Horizontal", 1),
    Sketcher.Constraint("Vertical", 2),
    Sketcher.Constraint("Radius", 3, 16.0),
    Sketcher.Constraint("DistanceX", 1, 2, 1, 1, 22.0),
    Sketcher.Constraint("DistanceY", 0, 2, 0, 1, 50.0),
    Sketcher.Constraint("DistanceX", -1, 1, 0, 2, 52.0),
    Sketcher.Constraint("DistanceY", 0, 2, -1, 1, 47.5),
    Sketcher.Constraint("DistanceY", 2, 1, 2, 2, 50.986202),
])
pocket15 = body.newObject("PartDesign::Pocket", "Pocket014")
pocket15.Profile = sketch19
pocket15.Length = 10
pocket15.Reversed = True

# Sketch on XY plane
sketch20 = body.newObject("Sketcher::SketchObject", "Sketch019")
sketch20.AttachmentSupport = (doc.getObject("XY_Plane"), [""])
sketch20.MapMode = "FlatFace"
sketch20.addGeometry([
    Part.Circle(Vector(58.5, 2.3, 0), Vector(0, 0, 1), 2),
    Part.Circle(Vector(58.5, -63.3, 0), Vector(0, 0, 1), 2),
], False)
sketch20.addConstraint([
    Sketcher.Constraint("Equal", 0, 1),
    Sketcher.Constraint("Vertical", 0, 3, 1, 3),
    Sketcher.Constraint("Diameter", 0, 4.0),
    Sketcher.Constraint("DistanceX", -1, 1, 0, 3, 58.5),
    Sketcher.Constraint("DistanceY", -1, 1, 0, 3, 2.3),
    Sketcher.Constraint("DistanceY", 1, 3, -1, 1, 63.3),
])
pocket16 = body.newObject("PartDesign::Pocket", "Pocket015")
pocket16.Profile = sketch20
pocket16.Length = 10
pocket16.Reversed = True

# Sketch on XY plane
sketch21 = body.newObject("Sketcher::SketchObject", "Sketch020")
sketch21.AttachmentSupport = (doc.getObject("XY_Plane"), [""])
sketch21.MapMode = "FlatFace"
sketch21.addGeometry([
    Part.Circle(Vector(58.5, 2.3, 0), Vector(0, 0, 1), 4),
    Part.Circle(Vector(58.5, 2.3, 0), Vector(0, 0, 1), 2),
    Part.Circle(Vector(58.5, -63.3, 0), Vector(0, 0, 1), 4),
    Part.Circle(Vector(58.5, -63.3, 0), Vector(0, 0, 1), 2),
], False)
sketch21.addConstraint([
    Sketcher.Constraint("Coincident", 1, 3, 0, 3),
    Sketcher.Constraint("Coincident", 3, 3, 2, 3),
    Sketcher.Constraint("Equal", 0, 2),
    Sketcher.Constraint("Equal", 1, 3),
    Sketcher.Constraint("Vertical", 1, 3, 2, 3),
    Sketcher.Constraint("Diameter", 0, 8.0),
    Sketcher.Constraint("Diameter", 1, 4.0),
    Sketcher.Constraint("DistanceX", -1, 1, 0, 3, 58.5),
    Sketcher.Constraint("DistanceY", -1, 1, 0, 3, 2.3),
    Sketcher.Constraint("DistanceY", 2, 3, -1, 1, 63.3),
])
pad5 = body.newObject("PartDesign::Pad", "Pad004")
pad5.Profile = sketch21
pad5.Length = 5

# Sketch on XY plane
sketch22 = body.newObject("Sketcher::SketchObject", "Sketch021")
sketch22.AttachmentSupport = (doc.getObject("XY_Plane"), [""])
sketch22.MapMode = "FlatFace"
sketch22.addGeometry([
    Part.LineSegment(Vector(-23, 50, 0), Vector(-23, 60, 0)),
    Part.ArcOfCircle(Part.Circle(Vector(-18, 60, 0), Vector(0, 0, 1), 5), math.radians(0), math.radians(180)),
    Part.LineSegment(Vector(-13, 60, 0), Vector(-13, 50, 0)),
    Part.ArcOfCircle(Part.Circle(Vector(-18, 50, 0), Vector(0, 0, 1), 5), math.radians(180), math.radians(360)),
], False)
sketch22.addConstraint([
    Sketcher.Constraint("Tangent", 0, 2, 1, 2),
    Sketcher.Constraint("Tangent", 1, 1, 2, 1),
    Sketcher.Constraint("Tangent", 2, 2, 3, 2),
    Sketcher.Constraint("Tangent", 3, 1, 0, 1),
    Sketcher.Constraint("Vertical", 0),
    Sketcher.Constraint("Vertical", 2),
    Sketcher.Constraint("Radius", 1, 5.0),
    Sketcher.Constraint("DistanceY", 0, 1, 0, 2, 10.0),
    Sketcher.Constraint("DistanceX", 1, 3, -1, 1, 18.0),
    Sketcher.Constraint("DistanceY", -1, 1, 1, 3, 60.5),
])
pocket17 = body.newObject("PartDesign::Pocket", "Pocket016")
pocket17.Profile = sketch22
pocket17.Length = 10
pocket17.Reversed = True

# Sketch on XY plane
sketch23 = body.newObject("Sketcher::SketchObject", "Sketch022")
sketch23.AttachmentSupport = (doc.getObject("XY_Plane"), [""])
sketch23.MapMode = "FlatFace"
sketch23.addGeometry([
    Part.LineSegment(Vector(36, 50, 0), Vector(46, 50, 0)),
    Part.ArcOfCircle(Part.Circle(Vector(46, 43, 0), Vector(0, 0, 1), 7), math.radians(-90), math.radians(90)),
    Part.LineSegment(Vector(46, 36, 0), Vector(36, 36, 0)),
    Part.ArcOfCircle(Part.Circle(Vector(36, 43, 0), Vector(0, 0, 1), 7), math.radians(90), math.radians(270)),
], False)
sketch23.addConstraint([
    Sketcher.Constraint("Tangent", 0, 2, 1, 2),
    Sketcher.Constraint("Tangent", 1, 1, 2, 1),
    Sketcher.Constraint("Tangent", 2, 2, 3, 2),
    Sketcher.Constraint("Tangent", 3, 1, 0, 1),
    Sketcher.Constraint("Horizontal", 0),
    Sketcher.Constraint("Horizontal", 2),
    Sketcher.Constraint("Radius", 1, 7.0),
    Sketcher.Constraint("DistanceX", 0, 1, 0, 2, 10.0),
    Sketcher.Constraint("DistanceX", -1, 1, 1, 3, 46.0),
    Sketcher.Constraint("DistanceY", -1, 1, 1, 3, 43.0),
])
pocket18 = body.newObject("PartDesign::Pocket", "Pocket017")
pocket18.Profile = sketch23
pocket18.Length = 10
pocket18.Reversed = True

# Sketch on XY plane
sketch24 = body.newObject("Sketcher::SketchObject", "Sketch023")
sketch24.AttachmentSupport = (doc.getObject("XY_Plane"), [""])
sketch24.MapMode = "FlatFace"
sketch24.addGeometry(Part.Circle(Vector(90, 50.5, 0), Vector(0, 0, 1), 2), False)
sketch24.addConstraint([
    Sketcher.Constraint("Diameter", 0, 4.0),
    Sketcher.Constraint("DistanceX", -1, 1, 0, 3, 90.0),
    Sketcher.Constraint("DistanceY", -1, 1, 0, 3, 50.5),
])
pocket19 = body.newObject("PartDesign::Pocket", "Pocket018")
pocket19.Profile = sketch24
pocket19.Length = 10
pocket19.Reversed = True

# Sketch on XY plane
sketch25 = body.newObject("Sketcher::SketchObject", "Sketch024")
sketch25.AttachmentSupport = (doc.getObject("XY_Plane"), [""])
sketch25.MapMode = "FlatFace"
add_polygon(sketch25, [(-86, 76), (-86, 70), (-100, 70), (-100, 76)])  # lines 0-3
sketch25.addConstraint([
    Sketcher.Constraint("Vertical", 0),
    Sketcher.Constraint("Horizontal", 1),
    Sketcher.Constraint("Vertical", 2),
    Sketcher.Constraint("Horizontal", 3),
    Sketcher.Constraint("DistanceX", 1, 2, 1, 1, 15.0),
    Sketcher.Constraint("DistanceY", 0, 2, 0, 1, 5.0),
    Sketcher.Constraint("DistanceX", 0, 2, -1, 1, 85.5),
    Sketcher.Constraint("DistanceY", -1, 1, 0, 2, 70.5),
])
pocket20 = body.newObject("PartDesign::Pocket", "Pocket019")
pocket20.Profile = sketch25
pocket20.Length = 5
pocket20.Reversed = True

doc.recompute()
